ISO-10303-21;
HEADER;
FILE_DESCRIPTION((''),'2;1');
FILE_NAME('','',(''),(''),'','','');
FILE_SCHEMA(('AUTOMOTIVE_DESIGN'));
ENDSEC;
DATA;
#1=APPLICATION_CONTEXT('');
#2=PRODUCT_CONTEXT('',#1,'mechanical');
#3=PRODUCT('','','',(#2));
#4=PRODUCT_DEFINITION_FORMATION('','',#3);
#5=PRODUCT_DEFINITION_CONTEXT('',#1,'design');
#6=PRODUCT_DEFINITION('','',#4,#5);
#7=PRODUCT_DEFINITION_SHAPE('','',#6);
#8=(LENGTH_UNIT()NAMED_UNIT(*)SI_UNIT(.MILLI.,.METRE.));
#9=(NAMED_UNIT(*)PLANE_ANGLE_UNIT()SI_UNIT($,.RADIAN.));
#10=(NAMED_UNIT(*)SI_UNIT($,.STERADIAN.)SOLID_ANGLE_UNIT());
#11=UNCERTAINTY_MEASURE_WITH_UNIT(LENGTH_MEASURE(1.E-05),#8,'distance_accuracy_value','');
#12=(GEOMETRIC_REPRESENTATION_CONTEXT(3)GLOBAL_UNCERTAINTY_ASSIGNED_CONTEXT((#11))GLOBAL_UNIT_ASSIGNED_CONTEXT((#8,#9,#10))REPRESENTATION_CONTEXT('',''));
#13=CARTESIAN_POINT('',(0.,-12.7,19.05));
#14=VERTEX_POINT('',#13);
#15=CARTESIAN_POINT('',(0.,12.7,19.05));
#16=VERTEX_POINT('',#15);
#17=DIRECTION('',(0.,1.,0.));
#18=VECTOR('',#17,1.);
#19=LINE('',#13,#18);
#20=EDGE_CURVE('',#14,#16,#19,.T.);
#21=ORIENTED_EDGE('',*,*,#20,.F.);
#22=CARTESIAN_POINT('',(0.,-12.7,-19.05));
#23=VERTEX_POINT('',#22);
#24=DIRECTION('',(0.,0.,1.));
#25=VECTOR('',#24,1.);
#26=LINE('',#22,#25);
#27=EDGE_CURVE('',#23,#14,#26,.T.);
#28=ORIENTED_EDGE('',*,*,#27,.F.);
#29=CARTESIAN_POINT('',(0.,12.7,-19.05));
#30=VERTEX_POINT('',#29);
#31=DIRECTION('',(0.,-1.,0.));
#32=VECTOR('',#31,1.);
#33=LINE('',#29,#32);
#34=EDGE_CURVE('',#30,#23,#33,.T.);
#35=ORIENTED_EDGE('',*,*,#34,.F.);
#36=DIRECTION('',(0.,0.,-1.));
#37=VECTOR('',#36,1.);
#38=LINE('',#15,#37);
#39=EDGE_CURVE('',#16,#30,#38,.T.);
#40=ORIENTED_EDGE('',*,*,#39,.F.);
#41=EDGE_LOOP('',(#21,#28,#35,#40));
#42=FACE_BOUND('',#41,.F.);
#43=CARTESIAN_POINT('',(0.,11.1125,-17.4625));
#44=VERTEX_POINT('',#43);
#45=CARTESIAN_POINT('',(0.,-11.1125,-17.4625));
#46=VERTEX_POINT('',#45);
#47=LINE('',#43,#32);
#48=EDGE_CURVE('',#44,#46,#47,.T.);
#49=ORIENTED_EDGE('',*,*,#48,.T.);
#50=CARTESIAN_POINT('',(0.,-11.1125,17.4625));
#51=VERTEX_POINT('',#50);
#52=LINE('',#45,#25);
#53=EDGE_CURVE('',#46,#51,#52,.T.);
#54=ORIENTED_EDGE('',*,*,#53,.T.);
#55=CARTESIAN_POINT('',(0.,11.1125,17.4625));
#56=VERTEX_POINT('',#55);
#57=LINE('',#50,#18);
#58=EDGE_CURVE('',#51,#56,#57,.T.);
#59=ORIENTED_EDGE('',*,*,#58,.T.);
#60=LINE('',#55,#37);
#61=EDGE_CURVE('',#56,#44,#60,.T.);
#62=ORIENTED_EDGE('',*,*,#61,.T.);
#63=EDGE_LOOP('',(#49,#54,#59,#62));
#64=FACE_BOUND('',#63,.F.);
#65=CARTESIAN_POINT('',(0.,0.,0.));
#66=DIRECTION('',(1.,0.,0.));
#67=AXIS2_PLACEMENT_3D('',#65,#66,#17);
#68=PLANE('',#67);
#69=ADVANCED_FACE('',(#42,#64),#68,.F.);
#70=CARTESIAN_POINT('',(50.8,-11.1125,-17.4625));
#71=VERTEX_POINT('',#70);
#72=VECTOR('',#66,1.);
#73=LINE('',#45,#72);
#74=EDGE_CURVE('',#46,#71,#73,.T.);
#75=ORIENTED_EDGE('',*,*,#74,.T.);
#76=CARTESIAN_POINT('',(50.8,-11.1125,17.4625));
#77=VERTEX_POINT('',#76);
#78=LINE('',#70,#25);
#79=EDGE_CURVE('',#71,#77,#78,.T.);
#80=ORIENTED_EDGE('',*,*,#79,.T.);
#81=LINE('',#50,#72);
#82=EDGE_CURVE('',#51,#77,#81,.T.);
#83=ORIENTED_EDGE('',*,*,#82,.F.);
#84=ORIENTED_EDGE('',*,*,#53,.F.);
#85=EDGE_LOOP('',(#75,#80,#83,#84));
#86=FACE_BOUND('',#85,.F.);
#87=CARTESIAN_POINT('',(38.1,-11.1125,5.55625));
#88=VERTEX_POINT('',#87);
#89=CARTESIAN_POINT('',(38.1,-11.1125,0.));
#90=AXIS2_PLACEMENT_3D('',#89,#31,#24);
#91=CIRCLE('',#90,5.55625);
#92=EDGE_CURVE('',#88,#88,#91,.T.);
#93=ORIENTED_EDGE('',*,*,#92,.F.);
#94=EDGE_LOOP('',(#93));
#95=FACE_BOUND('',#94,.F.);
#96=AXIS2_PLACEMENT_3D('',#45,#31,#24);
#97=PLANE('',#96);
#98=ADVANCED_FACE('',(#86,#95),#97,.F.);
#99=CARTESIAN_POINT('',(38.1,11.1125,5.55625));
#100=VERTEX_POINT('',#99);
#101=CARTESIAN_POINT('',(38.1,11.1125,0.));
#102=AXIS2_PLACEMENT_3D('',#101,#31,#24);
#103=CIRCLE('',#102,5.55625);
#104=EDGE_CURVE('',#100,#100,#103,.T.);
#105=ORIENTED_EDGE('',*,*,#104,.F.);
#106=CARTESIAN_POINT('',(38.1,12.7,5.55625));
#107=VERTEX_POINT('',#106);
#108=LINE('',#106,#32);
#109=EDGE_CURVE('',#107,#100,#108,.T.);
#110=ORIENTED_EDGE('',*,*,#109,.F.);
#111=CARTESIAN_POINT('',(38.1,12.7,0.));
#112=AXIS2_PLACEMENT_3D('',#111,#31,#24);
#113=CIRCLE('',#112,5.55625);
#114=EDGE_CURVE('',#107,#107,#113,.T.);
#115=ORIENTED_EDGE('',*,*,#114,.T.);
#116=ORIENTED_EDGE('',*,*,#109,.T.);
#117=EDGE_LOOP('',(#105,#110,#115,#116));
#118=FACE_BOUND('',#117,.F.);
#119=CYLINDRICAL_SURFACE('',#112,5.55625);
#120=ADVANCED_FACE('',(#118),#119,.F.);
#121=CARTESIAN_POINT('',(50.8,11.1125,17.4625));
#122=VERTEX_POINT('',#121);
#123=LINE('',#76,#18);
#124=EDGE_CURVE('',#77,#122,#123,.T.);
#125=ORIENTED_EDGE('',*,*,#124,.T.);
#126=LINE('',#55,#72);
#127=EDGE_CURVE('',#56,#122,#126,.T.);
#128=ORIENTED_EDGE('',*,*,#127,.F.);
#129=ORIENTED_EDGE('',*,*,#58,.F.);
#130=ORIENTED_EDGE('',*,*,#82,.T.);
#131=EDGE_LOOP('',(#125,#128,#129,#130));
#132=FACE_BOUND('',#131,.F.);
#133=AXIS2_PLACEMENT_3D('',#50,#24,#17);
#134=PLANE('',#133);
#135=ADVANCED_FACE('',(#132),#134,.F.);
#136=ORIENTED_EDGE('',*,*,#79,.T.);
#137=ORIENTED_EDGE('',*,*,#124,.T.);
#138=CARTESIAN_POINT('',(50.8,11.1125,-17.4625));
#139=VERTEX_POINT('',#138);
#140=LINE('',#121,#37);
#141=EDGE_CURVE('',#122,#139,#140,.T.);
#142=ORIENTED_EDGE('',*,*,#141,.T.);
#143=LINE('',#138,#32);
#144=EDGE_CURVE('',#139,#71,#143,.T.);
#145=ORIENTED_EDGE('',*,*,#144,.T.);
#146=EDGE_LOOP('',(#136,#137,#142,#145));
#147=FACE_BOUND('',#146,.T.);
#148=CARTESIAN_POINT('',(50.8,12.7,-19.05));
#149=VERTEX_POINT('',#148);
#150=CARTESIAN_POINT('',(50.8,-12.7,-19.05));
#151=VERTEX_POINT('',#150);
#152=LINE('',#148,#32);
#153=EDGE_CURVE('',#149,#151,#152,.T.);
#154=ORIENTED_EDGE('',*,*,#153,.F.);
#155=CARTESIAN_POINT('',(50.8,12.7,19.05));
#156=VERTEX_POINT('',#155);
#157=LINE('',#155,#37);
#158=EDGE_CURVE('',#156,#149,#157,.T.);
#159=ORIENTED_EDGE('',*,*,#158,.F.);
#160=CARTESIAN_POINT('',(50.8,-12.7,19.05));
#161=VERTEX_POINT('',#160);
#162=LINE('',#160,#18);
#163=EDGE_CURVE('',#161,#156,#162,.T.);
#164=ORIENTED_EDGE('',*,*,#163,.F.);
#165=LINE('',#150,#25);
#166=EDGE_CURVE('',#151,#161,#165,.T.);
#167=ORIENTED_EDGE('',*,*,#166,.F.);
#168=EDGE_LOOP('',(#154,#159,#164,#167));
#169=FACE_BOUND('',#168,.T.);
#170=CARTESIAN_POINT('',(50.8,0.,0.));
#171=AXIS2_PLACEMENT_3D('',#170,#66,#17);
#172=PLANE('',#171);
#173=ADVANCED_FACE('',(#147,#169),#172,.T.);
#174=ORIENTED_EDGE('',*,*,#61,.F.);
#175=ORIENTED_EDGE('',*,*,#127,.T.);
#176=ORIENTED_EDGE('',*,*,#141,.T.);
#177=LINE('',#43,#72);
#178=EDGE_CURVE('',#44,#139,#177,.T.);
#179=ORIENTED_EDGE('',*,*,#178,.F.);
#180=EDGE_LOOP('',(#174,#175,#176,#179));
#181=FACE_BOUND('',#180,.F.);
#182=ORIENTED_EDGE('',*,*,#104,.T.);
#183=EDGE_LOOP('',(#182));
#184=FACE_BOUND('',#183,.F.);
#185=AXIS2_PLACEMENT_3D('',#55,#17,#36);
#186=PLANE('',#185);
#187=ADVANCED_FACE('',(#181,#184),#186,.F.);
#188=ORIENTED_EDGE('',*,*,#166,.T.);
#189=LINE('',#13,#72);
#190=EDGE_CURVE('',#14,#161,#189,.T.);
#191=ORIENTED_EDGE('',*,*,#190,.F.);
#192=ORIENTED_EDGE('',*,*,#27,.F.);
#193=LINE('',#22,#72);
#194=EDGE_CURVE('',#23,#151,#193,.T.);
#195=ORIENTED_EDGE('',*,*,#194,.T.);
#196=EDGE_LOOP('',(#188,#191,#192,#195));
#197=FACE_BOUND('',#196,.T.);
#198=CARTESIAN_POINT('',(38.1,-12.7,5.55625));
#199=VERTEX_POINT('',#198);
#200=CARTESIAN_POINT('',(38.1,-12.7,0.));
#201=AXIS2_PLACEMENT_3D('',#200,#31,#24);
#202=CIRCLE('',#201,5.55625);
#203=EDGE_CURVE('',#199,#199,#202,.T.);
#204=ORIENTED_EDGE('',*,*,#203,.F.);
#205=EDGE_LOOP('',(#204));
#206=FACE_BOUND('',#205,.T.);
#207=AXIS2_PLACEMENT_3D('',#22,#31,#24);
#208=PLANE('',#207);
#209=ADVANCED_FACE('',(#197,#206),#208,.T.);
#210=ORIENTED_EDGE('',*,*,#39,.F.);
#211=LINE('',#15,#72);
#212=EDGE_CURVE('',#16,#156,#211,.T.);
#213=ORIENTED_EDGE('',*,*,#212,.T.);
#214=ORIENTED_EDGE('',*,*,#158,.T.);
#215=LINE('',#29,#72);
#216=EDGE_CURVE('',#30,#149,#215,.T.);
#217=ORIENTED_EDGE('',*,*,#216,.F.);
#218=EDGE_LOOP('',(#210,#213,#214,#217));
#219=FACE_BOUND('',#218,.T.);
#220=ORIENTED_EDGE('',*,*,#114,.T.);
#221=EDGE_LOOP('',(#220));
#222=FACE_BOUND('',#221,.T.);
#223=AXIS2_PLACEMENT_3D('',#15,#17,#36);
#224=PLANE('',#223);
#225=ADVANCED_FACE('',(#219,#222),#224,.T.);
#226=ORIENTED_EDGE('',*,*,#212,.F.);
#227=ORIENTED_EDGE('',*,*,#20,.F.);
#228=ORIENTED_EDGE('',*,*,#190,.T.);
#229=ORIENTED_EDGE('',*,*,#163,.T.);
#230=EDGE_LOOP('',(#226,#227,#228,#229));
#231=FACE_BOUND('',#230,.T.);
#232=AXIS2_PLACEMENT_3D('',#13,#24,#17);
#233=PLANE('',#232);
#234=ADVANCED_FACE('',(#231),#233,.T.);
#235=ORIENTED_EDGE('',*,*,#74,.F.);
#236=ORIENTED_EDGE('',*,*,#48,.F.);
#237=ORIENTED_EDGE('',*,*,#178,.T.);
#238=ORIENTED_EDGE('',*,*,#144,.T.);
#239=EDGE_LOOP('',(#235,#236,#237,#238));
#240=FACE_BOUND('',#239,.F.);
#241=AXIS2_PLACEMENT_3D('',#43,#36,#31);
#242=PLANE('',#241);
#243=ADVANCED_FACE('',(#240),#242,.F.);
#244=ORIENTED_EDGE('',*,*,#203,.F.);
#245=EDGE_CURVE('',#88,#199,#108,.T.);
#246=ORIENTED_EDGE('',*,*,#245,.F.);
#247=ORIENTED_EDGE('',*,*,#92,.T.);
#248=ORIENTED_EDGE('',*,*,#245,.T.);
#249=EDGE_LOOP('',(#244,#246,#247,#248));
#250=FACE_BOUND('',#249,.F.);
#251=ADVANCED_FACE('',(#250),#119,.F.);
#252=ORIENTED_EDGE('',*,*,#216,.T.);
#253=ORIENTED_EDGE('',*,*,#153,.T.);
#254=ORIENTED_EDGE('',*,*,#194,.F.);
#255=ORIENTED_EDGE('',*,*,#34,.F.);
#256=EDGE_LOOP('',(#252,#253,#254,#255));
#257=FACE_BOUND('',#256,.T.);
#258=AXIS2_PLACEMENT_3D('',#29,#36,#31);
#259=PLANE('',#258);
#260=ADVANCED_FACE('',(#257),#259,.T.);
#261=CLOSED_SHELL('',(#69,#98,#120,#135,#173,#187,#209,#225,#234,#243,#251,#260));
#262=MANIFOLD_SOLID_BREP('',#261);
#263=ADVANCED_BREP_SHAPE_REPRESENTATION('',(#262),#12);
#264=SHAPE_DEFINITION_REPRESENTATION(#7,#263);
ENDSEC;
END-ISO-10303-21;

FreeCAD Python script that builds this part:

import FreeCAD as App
import Part
import Sketcher

V = App.Vector
Q = App.Units.Quantity


def add_polygon(sketch, points):
    """Adds a closed chain of lines whose ends are joined by coincident constraints."""
    first, n = sketch.GeometryCount, len(points)
    for a, b in zip(points, points[1:] + points[:1]):
        sketch.addGeometry(Part.LineSegment(App.Vector(*a, 0), App.Vector(*b, 0)), False)
    for i in range(n):
        sketch.addConstraint(Sketcher.Constraint("Coincident", first + i, 2, first + (i + 1) % n, 1))

doc = App.newDocument("Part")
body = doc.addObject("PartDesign::Body", "Body")

sketch1 = body.newObject("Sketcher::SketchObject", "Sketch")
sketch1.AttachmentSupport = (doc.getObject("YZ_Plane"), [""])
sketch1.MapMode = "FlatFace"
add_polygon(sketch1, [(13, 19), (-13, 19), (-13, -19), (13, -19)])
add_polygon(sketch1, [(-11, -17), (-11, 17), (11, 17), (11, -17)])
sketch1.addConstraint(Sketcher.Constraint("Horizontal", 0))
sketch1.addConstraint(Sketcher.Constraint("Vertical", 1))
sketch1.addConstraint(Sketcher.Constraint("Horizontal", 2))
sketch1.addConstraint(Sketcher.Constraint("Vertical", 3))
sketch1.addConstraint(Sketcher.Constraint("Vertical", 4))
sketch1.addConstraint(Sketcher.Constraint("Horizontal", 5))
sketch1.addConstraint(Sketcher.Constraint("Vertical", 6))
sketch1.addConstraint(Sketcher.Constraint("Horizontal", 7))
sketch1.addConstraint(Sketcher.Constraint("Symmetric", 0, 2, 2, 2, -1, 1))
sketch1.addConstraint(Sketcher.Constraint("Symmetric", 4, 2, 6, 2, -1, 1))
sketch1.addConstraint(Sketcher.Constraint("DistanceX", 0, 2, 0, 1, Q("1 in")))
sketch1.addConstraint(Sketcher.Constraint("DistanceY", 1, 2, 1, 1, Q("1.5 in")))
sketch1.addConstraint(Sketcher.Constraint("DistanceX", 0, 2, 4, 2, Q("0.0625 in")))
sketch1.addConstraint(Sketcher.Constraint("DistanceY", 4, 2, 0, 2, Q("0.0625 in")))
pad1 = body.newObject("PartDesign::Pad", "Pad")
pad1.Profile = sketch1
pad1.Length = Q("2 in")

sketch2 = body.newObject("Sketcher::SketchObject", "Sketch001")
sketch2.AttachmentSupport = (doc.getObject("XZ_Plane"), [""])
sketch2.MapMode = "FlatFace"
sketch2.AttachmentOffset = App.Placement(V(0, 0, -0.5 * 25.4), App.Rotation())
sketch2.addGeometry(Part.Circle(V(38, 0, 0), V(0, 0, 1), 6), False)
sketch2.addConstraint(Sketcher.Constraint("PointOnObject", 0, 3, -1))
sketch2.addConstraint(Sketcher.Constraint("Diameter", 0, Q("0.4375 in")))
sketch2.addConstraint(Sketcher.Constraint("DistanceX", -1, 1, 0, 3, Q("1.5 in")))
doc.recompute()
hole = body.newObject("PartDesign::Hole", "Hole")
hole.Profile = sketch2
hole.ThreadType = "None"
hole.Diameter = Q("0.4375 in")
hole.DepthType = "ThroughAll"
hole.Reversed = True

doc.recompute()
